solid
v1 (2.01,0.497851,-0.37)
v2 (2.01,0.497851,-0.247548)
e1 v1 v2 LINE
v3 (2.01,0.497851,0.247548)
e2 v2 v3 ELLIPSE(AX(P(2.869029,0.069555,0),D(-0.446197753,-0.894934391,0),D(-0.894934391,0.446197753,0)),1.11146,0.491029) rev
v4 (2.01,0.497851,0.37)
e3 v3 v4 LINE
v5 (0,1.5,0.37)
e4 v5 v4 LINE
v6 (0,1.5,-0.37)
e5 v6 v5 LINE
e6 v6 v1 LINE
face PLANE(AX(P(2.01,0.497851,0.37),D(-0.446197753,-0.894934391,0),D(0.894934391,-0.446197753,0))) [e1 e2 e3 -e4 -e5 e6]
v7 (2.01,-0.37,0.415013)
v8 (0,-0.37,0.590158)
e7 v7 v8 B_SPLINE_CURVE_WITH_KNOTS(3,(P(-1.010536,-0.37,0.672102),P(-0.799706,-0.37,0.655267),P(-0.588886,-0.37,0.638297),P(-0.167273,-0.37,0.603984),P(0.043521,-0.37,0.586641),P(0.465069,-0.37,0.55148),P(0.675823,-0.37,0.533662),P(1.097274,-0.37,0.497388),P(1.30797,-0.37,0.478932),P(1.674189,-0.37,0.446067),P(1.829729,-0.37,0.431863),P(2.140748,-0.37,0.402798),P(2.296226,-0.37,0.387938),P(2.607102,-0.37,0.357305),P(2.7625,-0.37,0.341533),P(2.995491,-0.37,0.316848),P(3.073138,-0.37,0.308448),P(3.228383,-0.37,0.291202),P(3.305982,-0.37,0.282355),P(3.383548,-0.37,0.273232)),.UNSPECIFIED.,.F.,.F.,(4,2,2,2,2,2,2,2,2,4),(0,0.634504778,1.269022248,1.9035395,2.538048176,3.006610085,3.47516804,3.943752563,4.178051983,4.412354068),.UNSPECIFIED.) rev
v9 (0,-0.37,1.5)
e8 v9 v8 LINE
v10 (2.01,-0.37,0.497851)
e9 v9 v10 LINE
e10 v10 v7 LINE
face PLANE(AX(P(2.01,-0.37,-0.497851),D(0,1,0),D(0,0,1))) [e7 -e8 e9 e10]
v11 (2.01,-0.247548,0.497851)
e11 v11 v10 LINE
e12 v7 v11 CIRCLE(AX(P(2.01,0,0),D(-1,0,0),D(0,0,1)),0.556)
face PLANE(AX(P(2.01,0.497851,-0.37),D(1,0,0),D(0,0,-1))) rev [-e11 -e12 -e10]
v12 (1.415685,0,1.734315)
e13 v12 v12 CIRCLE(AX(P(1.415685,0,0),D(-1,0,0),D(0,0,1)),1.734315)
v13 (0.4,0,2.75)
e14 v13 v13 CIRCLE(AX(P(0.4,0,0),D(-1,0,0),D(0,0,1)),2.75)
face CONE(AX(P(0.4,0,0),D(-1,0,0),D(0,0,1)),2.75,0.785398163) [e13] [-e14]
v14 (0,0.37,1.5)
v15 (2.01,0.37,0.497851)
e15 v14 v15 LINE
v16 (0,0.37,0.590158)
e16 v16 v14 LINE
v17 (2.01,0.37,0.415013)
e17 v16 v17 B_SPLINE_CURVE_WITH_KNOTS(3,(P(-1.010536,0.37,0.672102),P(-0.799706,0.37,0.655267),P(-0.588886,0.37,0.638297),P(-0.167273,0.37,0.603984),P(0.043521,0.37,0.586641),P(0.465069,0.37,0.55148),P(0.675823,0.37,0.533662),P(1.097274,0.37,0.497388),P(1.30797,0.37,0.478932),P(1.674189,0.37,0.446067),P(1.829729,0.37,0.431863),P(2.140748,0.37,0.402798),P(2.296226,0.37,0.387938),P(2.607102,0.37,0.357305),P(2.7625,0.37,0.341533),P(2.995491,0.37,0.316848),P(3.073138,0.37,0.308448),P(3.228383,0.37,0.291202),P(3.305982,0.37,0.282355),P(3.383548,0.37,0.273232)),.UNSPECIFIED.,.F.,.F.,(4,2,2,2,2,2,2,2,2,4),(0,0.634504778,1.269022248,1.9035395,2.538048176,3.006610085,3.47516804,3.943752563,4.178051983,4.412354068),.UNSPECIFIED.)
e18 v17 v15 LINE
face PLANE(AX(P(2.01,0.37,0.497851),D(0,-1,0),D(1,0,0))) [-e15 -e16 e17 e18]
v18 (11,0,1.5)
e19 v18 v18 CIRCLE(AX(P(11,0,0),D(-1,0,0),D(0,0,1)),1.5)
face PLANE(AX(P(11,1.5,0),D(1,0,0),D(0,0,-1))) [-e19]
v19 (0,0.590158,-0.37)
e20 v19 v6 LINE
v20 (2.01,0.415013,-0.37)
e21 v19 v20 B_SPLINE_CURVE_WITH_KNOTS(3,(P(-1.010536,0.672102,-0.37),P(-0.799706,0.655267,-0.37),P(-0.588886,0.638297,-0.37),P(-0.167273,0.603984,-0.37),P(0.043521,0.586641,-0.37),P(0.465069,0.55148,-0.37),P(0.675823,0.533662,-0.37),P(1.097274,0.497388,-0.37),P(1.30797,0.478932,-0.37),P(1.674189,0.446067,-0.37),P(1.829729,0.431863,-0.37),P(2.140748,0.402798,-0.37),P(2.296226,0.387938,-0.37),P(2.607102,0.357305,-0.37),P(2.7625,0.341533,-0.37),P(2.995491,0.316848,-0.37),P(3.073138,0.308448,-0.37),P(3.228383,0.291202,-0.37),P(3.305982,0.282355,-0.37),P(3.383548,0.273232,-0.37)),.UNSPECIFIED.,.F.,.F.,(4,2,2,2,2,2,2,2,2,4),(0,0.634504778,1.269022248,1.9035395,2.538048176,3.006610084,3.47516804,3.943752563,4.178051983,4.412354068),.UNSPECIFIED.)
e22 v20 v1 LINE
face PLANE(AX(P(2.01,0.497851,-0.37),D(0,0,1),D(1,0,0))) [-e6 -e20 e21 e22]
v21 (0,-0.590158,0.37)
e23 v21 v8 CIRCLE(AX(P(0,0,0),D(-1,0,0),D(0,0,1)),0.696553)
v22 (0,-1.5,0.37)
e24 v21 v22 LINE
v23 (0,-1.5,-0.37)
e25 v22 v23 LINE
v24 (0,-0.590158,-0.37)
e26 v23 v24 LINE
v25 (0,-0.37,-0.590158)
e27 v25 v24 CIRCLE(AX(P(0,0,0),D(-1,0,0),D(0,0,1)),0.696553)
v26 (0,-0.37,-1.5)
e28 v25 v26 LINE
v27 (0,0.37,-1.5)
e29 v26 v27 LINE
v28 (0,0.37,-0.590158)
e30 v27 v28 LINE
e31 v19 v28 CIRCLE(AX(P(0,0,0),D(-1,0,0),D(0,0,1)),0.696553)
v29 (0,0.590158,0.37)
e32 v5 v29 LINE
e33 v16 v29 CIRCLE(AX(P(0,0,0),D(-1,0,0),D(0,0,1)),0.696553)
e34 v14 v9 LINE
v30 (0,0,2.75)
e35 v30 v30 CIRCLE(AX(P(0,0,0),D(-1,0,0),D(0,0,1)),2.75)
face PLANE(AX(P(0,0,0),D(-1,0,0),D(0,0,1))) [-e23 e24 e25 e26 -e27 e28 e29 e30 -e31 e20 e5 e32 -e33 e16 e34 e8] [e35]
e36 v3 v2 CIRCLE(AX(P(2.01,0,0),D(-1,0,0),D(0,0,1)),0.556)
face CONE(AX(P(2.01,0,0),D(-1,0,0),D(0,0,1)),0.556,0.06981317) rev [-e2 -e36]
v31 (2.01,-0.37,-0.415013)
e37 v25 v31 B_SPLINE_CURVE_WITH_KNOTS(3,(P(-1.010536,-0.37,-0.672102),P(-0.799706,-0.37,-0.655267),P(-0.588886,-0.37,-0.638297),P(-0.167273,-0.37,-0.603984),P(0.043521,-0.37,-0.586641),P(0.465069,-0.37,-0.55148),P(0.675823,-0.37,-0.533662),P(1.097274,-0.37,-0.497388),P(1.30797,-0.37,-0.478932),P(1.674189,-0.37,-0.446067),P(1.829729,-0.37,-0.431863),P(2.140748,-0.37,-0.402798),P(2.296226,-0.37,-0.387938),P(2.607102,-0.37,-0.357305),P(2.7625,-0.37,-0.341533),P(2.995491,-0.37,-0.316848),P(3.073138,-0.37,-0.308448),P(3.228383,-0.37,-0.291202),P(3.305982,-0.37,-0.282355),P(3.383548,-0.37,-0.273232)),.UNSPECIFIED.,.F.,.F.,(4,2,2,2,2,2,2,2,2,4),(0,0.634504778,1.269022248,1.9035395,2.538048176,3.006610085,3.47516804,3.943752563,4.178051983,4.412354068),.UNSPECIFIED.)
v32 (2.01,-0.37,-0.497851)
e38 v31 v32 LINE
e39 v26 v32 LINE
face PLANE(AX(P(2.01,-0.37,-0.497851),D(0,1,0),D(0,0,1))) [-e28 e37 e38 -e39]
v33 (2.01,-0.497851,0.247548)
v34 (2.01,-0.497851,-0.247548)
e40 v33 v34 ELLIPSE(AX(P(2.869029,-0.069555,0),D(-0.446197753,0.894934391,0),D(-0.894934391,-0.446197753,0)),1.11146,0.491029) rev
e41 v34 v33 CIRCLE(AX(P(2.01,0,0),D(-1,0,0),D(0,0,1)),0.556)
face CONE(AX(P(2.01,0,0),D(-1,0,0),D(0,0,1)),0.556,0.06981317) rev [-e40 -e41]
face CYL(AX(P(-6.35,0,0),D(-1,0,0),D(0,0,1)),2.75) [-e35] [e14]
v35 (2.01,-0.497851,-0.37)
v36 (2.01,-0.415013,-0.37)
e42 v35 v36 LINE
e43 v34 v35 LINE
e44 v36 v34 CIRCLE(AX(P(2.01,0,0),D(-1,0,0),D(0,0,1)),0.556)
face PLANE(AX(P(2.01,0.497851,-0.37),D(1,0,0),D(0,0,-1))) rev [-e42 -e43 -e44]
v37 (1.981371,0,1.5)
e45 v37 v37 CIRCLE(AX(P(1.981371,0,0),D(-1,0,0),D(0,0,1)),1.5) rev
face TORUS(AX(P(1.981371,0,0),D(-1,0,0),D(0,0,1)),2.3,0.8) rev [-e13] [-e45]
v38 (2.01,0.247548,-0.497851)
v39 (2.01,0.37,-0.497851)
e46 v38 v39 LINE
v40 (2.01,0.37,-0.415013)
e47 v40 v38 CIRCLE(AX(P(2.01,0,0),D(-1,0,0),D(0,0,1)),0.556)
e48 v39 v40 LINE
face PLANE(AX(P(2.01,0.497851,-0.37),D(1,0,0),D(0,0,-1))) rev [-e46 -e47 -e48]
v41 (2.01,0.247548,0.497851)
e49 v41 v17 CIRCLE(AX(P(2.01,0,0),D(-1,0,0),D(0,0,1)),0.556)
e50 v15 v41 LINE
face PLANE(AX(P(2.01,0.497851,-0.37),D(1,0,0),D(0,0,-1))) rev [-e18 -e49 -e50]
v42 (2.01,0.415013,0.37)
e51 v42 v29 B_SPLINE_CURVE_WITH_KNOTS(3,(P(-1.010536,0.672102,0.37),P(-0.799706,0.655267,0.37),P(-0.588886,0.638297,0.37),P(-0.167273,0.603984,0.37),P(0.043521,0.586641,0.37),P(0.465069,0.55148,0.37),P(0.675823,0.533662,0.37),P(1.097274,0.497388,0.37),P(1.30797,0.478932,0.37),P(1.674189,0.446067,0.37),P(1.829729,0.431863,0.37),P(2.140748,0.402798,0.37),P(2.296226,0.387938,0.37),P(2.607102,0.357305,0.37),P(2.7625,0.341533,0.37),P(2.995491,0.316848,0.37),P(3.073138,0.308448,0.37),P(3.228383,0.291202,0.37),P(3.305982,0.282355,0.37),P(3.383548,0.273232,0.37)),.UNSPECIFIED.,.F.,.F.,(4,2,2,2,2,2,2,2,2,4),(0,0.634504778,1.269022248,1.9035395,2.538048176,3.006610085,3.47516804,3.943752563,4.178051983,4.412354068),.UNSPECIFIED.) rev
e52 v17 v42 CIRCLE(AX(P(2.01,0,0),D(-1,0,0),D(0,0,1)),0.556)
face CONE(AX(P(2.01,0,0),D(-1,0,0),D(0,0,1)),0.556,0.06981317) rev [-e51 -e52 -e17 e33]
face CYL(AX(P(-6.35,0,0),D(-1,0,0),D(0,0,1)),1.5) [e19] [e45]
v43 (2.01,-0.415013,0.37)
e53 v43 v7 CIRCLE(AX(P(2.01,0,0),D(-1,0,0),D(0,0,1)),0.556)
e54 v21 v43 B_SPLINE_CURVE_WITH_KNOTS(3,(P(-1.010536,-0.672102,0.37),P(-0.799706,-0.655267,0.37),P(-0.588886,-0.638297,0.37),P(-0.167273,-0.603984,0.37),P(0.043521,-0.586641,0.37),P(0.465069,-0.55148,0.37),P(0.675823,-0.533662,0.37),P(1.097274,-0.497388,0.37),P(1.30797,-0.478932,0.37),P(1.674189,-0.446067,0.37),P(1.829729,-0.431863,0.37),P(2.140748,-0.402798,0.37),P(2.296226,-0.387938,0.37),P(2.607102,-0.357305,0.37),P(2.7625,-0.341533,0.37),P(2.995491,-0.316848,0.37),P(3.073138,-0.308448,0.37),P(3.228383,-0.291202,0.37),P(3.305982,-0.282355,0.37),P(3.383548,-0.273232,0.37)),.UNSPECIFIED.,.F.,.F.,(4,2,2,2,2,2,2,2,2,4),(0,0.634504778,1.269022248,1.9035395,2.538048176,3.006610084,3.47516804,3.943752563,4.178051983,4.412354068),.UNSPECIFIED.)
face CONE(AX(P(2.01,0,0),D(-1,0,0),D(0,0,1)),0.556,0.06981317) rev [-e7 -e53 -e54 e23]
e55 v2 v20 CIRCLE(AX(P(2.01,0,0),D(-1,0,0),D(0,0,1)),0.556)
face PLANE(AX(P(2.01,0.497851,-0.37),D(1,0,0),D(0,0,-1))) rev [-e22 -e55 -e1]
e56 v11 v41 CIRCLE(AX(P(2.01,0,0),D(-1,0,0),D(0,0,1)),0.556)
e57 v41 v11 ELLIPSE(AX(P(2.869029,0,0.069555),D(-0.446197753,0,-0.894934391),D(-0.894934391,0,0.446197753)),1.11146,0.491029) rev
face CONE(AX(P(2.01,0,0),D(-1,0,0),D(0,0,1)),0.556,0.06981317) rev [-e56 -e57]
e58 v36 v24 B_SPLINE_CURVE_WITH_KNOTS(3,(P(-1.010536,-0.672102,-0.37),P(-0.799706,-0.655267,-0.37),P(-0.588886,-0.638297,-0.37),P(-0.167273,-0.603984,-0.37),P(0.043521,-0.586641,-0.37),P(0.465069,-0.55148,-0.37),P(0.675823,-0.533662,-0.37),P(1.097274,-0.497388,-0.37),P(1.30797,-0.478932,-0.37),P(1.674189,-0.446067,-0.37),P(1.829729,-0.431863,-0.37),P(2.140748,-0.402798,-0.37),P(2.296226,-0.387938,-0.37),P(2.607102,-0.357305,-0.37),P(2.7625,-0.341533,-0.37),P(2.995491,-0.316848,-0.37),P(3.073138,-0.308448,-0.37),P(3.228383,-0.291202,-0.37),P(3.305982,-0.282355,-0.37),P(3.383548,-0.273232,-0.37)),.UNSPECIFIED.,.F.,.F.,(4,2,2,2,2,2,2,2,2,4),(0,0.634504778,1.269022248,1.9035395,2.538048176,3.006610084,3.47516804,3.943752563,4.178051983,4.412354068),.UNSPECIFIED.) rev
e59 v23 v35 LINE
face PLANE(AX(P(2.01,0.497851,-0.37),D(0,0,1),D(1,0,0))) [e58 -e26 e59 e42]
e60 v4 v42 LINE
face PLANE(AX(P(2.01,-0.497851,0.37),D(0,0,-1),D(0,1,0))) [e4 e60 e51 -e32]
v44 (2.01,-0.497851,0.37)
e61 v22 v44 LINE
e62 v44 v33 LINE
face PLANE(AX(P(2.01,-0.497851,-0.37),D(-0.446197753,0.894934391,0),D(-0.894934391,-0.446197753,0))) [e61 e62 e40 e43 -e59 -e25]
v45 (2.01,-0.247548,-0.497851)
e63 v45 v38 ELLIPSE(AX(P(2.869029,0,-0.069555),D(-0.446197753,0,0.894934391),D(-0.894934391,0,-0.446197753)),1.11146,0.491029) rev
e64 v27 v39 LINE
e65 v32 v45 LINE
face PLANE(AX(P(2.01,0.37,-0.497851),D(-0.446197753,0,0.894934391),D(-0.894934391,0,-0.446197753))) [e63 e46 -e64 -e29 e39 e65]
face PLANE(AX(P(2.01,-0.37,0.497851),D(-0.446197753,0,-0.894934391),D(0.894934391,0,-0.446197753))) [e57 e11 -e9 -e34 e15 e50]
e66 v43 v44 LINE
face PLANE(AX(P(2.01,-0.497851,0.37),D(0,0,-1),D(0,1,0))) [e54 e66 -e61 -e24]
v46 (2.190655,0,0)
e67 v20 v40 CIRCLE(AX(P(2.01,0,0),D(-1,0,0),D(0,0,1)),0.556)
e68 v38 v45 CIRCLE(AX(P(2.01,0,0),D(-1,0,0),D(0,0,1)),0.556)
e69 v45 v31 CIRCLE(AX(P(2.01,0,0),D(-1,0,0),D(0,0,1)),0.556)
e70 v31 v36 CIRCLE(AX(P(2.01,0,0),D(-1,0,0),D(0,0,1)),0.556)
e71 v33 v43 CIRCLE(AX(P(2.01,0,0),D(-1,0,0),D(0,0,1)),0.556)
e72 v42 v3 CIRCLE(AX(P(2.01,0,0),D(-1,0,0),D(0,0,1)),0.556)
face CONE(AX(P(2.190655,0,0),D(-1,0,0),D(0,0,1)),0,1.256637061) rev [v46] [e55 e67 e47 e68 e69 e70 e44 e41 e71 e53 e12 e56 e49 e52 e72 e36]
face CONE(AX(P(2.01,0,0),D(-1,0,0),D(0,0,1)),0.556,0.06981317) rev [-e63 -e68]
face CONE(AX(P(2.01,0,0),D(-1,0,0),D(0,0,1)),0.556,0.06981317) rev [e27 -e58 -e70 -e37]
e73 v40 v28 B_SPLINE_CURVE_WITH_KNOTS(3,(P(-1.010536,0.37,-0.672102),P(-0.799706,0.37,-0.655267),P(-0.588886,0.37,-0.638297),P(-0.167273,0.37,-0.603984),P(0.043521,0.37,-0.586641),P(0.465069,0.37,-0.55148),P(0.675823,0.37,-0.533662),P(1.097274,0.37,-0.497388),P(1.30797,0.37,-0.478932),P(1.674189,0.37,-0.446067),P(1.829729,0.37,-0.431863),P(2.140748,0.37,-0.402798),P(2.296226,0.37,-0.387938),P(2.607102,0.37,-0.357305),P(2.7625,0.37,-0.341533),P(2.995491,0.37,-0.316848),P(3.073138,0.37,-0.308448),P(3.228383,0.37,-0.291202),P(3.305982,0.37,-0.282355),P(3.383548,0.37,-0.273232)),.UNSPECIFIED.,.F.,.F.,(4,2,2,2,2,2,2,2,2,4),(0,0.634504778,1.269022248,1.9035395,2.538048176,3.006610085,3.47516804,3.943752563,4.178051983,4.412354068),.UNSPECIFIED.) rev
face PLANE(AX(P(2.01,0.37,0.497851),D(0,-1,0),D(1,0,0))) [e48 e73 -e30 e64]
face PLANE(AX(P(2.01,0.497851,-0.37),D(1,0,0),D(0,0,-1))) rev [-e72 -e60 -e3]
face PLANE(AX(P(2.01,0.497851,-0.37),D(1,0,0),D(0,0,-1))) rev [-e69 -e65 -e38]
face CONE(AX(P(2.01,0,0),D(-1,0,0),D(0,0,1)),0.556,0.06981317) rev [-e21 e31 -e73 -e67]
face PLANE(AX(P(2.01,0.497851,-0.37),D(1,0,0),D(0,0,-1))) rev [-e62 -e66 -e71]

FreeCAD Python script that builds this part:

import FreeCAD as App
import Part
import Sketcher

V = App.Vector
Q = App.Units.Quantity


def edges_at(feature, points):
    """Names of the edges that pass closest to the given points."""
    edges = feature.Shape.Edges
    near = lambda p: min(range(len(edges)), key=lambda i: edges[i].distToShape(Part.Vertex(*p))[0])
    return sorted({f"Edge{near(p) + 1}" for p in points})

doc = App.newDocument("Part")
body = doc.addObject("PartDesign::Body", "Body")

sketch1 = body.newObject("Sketcher::SketchObject", "Sketch")
sketch1.AttachmentSupport = (doc.getObject("XY_Plane"), [""])
sketch1.MapMode = "FlatFace"
sketch1.addGeometry(Part.LineSegment(V(0, 2.75, 0), V(0, 0, 0)), False)
sketch1.addGeometry(Part.LineSegment(V(0, 0, 0), V(11, 0, 0)), False)
sketch1.addGeometry(Part.LineSegment(V(11, 0, 0), V(11, 1.5, 0)), False)
sketch1.addGeometry(Part.LineSegment(V(11, 1.5, 0), V(1.65, 1.5, 0)), False)
sketch1.addGeometry(Part.LineSegment(V(1.65, 1.5, 0), V(0.4, 2.75, 0)), False)
sketch1.addGeometry(Part.LineSegment(V(0.4, 2.75, 0), V(0, 2.75, 0)), False)
sketch1.addConstraint(Sketcher.Constraint("Coincident", 0, 2, 1, 1))
sketch1.addConstraint(Sketcher.Constraint("Coincident", 1, 2, 2, 1))
sketch1.addConstraint(Sketcher.Constraint("Coincident", 2, 2, 3, 1))
sketch1.addConstraint(Sketcher.Constraint("Coincident", 3, 2, 4, 1))
sketch1.addConstraint(Sketcher.Constraint("Coincident", 4, 2, 5, 1))
sketch1.addConstraint(Sketcher.Constraint("Coincident", 5, 2, 0, 1))
sketch1.addConstraint(Sketcher.Constraint("Vertical", 0))
sketch1.addConstraint(Sketcher.Constraint("Horizontal", 1))
sketch1.addConstraint(Sketcher.Constraint("Vertical", 2))
sketch1.addConstraint(Sketcher.Constraint("Horizontal", 3))
sketch1.addConstraint(Sketcher.Constraint("Horizontal", 5))
sketch1.addConstraint(Sketcher.Constraint("Coincident", 0, 2, -1, 1))
sketch1.addConstraint(Sketcher.Constraint("DistanceX", 1, 1, 1, 2, Q("11 mm")))
sketch1.addConstraint(Sketcher.Constraint("Angle", 4, Q("135 deg")))
sketch1.addConstraint(Sketcher.Constraint("DistanceX", 5, 2, 5, 1, Q("0.4 mm")))
sketch1.addConstraint(Sketcher.Constraint("DistanceY", 2, 1, 2, 2, Q("1.5 mm")))
sketch1.addConstraint(Sketcher.Constraint("DistanceX", 3, 2, 3, 1, Q("9.35 mm")))
revolution = body.newObject("PartDesign::Revolution", "Revolution")
revolution.Profile = sketch1
revolution.ReferenceAxis = (sketch1, ["H_Axis"])
revolution.Angle = 360
doc.recompute()

fillet = body.newObject("PartDesign::Fillet", "Fillet")
fillet.Base = (revolution, edges_at(revolution, [(1.65, -1.5, 0)]))
fillet.Radius = 0.8

sketch2 = body.newObject("Sketcher::SketchObject", "Sketch001")
sketch2.AttachmentSupport = (doc.getObject("YZ_Plane"), [""])
sketch2.MapMode = "FlatFace"
sketch2.addGeometry(Part.LineSegment(V(1.5, -0.37, 0), V(-1.5, -0.37, 0)), False)
sketch2.addGeometry(Part.LineSegment(V(-1.5, -0.37, 0), V(-1.5, 0.37, 0)), False)
sketch2.addGeometry(Part.LineSegment(V(-1.5, 0.37, 0), V(1.5, 0.37, 0)), False)
sketch2.addGeometry(Part.LineSegment(V(1.5, 0.37, 0), V(1.5, -0.37, 0)), False)
sketch2.addConstraint(Sketcher.Constraint("Coincident", 0, 2, 1, 1))
sketch2.addConstraint(Sketcher.Constraint("Coincident", 1, 2, 2, 1))
sketch2.addConstraint(Sketcher.Constraint("Coincident", 2, 2, 3, 1))
sketch2.addConstraint(Sketcher.Constraint("Coincident", 3, 2, 0, 1))
sketch2.addConstraint(Sketcher.Constraint("Horizontal", 0))
sketch2.addConstraint(Sketcher.Constraint("Vertical", 1))
sketch2.addConstraint(Sketcher.Constraint("Horizontal", 2))
sketch2.addConstraint(Sketcher.Constraint("Vertical", 3))
sketch2.addConstraint(Sketcher.Constraint("Symmetric", 0, 2, 2, 2, -1, 1))
sketch2.addConstraint(Sketcher.Constraint("DistanceX", 0, 2, 0, 1, Q("3 mm")))
sketch2.addConstraint(Sketcher.Constraint("DistanceY", 1, 1, 1, 2, Q("0.74 mm")))

sketch3 = body.newObject("Sketcher::SketchObject", "Sketch002")
sketch3.AttachmentSupport = (doc.getObject("YZ_Plane"), [""])
sketch3.MapMode = "FlatFace"
sketch3.AttachmentOffset = App.Placement(V(0, 0, 2.01), App.Rotation())
sketch3.addGeometry(Part.LineSegment(V(0.497851, -0.37, 0), V(-0.497851, -0.37, 0)), False)
sketch3.addGeometry(Part.LineSegment(V(-0.497851, -0.37, 0), V(-0.497851, 0.37, 0)), False)
sketch3.addGeometry(Part.LineSegment(V(-0.497851, 0.37, 0), V(0.497851, 0.37, 0)), False)
sketch3.addGeometry(Part.LineSegment(V(0.497851, 0.37, 0), V(0.497851, -0.37, 0)), False)
sketch3.addConstraint(Sketcher.Constraint("Coincident", 0, 2, 1, 1))
sketch3.addConstraint(Sketcher.Constraint("Coincident", 1, 2, 2, 1))
sketch3.addConstraint(Sketcher.Constraint("Coincident", 2, 2, 3, 1))
sketch3.addConstraint(Sketcher.Constraint("Coincident", 3, 2, 0, 1))
sketch3.addConstraint(Sketcher.Constraint("Horizontal", 0))
sketch3.addConstraint(Sketcher.Constraint("Vertical", 1))
sketch3.addConstraint(Sketcher.Constraint("Horizontal", 2))
sketch3.addConstraint(Sketcher.Constraint("Vertical", 3))
sketch3.addConstraint(Sketcher.Constraint("Symmetric", 0, 2, 2, 2, -1, 1))
sketch3.addConstraint(Sketcher.Constraint("DistanceY", 1, 1, 1, 2, Q("0.74 mm")))
sketch3.addConstraint(Sketcher.Constraint("DistanceX", 0, 2, 0, 1, Q("0.995702 mm")))

subtractiveloft = body.newObject("PartDesign::SubtractiveLoft", "SubtractiveLoft")
subtractiveloft.Profile = sketch2
subtractiveloft.Sections = [sketch3]
doc.recompute()

polarpattern = body.newObject("PartDesign::PolarPattern", "PolarPattern")
polarpattern.Originals = [subtractiveloft]
polarpattern.Axis = (doc.getObject("X_Axis"), [""])
polarpattern.Angle = 90
polarpattern.Occurrences = 2
body.Tip = polarpattern

sketch4 = body.newObject("Sketcher::SketchObject", "Sketch003")
sketch4.AttachmentSupport = (doc.getObject("XY_Plane"), [""])
sketch4.MapMode = "FlatFace"
sketch4.addGeometry(Part.LineSegment(V(0, 0.696553, 0), V(0, 0, 0)), False)
sketch4.addGeometry(Part.LineSegment(V(0, 0, 0), V(2.190655, 0, 0)), False)
sketch4.addGeometry(Part.LineSegment(V(2.190655, 0, 0), V(2.01, 0.556, 0)), False)
sketch4.addGeometry(Part.LineSegment(V(2.01, 0.556, 0), V(0, 0.696553, 0)), False)
sketch4.addConstraint(Sketcher.Constraint("Coincident", 0, 2, 1, 1))
sketch4.addConstraint(Sketcher.Constraint("Coincident", 1, 2, 2, 1))
sketch4.addConstraint(Sketcher.Constraint("Coincident", 2, 2, 3, 1))
sketch4.addConstraint(Sketcher.Constraint("Coincident", 3, 2, 0, 1))
sketch4.addConstraint(Sketcher.Constraint("Vertical", 0))
sketch4.addConstraint(Sketcher.Constraint("Horizontal", 1))
sketch4.addConstraint(Sketcher.Constraint("Coincident", 0, 2, -1, 1))
sketch4.addConstraint(Sketcher.Constraint("Angle", 2, Q("108 deg")))
sketch4.addConstraint(Sketcher.Constraint("Angle", 3, Q("176 deg")))
sketch4.addConstraint(Sketcher.Constraint("DistanceX", -1, 1, 2, 2, Q("2.01 mm")))
sketch4.addConstraint(Sketcher.Constraint("DistanceY", -1, 1, 2, 2, Q("0.556 mm")))
groove = body.newObject("PartDesign::Groove", "Groove")
groove.Profile = sketch4
groove.ReferenceAxis = (sketch4, ["H_Axis"])
groove.Angle = 360

doc.recompute()
